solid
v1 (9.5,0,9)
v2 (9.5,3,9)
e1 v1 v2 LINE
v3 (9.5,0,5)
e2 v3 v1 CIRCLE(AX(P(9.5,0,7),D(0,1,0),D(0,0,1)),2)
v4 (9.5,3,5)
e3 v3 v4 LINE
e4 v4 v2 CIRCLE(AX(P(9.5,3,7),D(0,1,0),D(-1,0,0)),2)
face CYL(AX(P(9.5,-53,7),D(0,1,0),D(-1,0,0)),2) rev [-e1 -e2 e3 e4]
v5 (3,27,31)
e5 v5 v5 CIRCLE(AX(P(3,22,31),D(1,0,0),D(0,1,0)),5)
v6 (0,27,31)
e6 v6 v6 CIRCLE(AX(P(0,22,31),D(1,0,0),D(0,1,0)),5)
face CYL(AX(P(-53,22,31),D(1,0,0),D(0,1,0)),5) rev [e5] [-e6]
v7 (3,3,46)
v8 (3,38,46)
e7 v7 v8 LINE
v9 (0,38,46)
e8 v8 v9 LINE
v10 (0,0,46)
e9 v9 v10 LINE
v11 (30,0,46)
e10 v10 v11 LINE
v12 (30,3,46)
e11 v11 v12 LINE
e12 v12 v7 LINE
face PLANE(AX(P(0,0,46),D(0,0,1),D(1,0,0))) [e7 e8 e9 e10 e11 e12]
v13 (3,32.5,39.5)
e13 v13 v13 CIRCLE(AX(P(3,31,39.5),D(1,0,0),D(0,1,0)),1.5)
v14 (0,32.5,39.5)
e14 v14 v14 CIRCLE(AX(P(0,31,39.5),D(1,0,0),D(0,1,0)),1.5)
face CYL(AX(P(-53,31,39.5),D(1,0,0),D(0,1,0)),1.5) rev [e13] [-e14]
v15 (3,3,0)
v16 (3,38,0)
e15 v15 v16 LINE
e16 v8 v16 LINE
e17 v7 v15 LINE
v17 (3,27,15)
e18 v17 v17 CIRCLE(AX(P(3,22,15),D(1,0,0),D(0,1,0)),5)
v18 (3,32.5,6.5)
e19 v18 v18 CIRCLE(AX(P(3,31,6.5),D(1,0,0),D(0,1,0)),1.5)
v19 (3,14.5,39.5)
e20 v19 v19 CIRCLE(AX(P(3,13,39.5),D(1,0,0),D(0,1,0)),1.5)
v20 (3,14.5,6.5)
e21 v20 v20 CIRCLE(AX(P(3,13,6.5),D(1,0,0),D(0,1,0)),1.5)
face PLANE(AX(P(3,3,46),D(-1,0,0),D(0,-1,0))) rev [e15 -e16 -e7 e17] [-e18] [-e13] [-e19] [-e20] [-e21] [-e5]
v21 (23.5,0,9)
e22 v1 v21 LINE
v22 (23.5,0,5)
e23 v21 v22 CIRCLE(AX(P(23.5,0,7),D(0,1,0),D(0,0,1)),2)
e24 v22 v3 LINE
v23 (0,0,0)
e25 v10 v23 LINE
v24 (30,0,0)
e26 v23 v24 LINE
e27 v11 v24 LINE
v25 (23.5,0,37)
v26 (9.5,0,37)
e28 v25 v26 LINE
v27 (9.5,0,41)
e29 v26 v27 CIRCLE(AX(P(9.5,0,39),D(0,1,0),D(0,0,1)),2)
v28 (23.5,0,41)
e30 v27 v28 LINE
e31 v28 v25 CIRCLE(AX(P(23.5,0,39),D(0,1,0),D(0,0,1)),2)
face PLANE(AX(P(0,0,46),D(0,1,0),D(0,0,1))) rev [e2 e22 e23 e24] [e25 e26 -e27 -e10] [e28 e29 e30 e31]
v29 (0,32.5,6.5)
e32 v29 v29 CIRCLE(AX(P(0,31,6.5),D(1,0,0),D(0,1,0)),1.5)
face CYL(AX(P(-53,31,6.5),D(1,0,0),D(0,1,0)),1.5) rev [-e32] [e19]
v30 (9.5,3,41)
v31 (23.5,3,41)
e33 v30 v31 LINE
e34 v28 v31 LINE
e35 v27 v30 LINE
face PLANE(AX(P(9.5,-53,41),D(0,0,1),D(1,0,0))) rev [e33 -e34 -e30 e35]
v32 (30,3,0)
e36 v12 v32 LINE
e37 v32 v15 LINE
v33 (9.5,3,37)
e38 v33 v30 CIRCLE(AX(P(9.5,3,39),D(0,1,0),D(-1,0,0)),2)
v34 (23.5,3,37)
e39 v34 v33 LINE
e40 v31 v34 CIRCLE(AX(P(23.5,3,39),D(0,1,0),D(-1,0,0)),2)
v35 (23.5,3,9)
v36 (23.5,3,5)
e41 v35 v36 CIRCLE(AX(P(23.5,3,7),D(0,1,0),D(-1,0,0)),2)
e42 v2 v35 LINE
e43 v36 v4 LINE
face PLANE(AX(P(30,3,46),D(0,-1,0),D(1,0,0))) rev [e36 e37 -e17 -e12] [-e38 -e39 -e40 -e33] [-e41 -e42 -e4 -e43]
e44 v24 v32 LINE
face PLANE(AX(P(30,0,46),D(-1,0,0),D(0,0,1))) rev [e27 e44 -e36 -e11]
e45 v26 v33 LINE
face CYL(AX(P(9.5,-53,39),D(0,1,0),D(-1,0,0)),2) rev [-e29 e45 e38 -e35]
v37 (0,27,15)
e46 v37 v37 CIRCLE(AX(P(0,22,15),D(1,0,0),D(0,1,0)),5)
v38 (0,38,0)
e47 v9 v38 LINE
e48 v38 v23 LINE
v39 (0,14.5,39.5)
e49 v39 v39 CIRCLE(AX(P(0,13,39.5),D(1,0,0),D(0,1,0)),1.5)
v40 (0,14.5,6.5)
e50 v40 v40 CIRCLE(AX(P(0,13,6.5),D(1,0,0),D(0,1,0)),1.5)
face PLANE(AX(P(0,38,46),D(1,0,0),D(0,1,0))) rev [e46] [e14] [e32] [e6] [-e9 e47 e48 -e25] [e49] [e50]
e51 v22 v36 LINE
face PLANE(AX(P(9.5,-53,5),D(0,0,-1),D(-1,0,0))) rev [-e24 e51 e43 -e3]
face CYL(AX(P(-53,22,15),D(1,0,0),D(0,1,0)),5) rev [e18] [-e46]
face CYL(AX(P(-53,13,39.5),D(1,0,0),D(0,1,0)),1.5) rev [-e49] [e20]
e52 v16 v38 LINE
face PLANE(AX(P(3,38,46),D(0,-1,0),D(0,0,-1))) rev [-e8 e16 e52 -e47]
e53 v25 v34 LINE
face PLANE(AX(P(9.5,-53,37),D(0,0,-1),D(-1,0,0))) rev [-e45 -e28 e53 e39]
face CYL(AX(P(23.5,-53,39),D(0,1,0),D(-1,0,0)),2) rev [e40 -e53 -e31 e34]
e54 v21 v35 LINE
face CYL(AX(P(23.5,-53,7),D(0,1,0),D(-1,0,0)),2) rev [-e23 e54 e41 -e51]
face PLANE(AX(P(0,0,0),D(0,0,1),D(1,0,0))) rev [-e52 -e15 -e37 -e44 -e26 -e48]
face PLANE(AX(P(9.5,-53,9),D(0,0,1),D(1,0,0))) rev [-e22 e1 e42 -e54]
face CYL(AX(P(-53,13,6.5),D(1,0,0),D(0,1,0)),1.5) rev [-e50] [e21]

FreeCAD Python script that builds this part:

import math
import FreeCAD as App
import Part
import Sketcher
from FreeCAD import Vector
Q = App.Units.Quantity


def add_polygon(sketch, points):
    """Adds a closed chain of lines whose ends are joined by coincident constraints."""
    first, n = sketch.GeometryCount, len(points)
    for a, b in zip(points, points[1:] + points[:1]):
        sketch.addGeometry(Part.LineSegment(App.Vector(*a, 0), App.Vector(*b, 0)), False)
    for i in range(n):
        sketch.addConstraint(Sketcher.Constraint("Coincident", first + i, 2, first + (i + 1) % n, 1))

doc = App.newDocument("Part")
body = doc.addObject("PartDesign::Body", "Body")

# Sketch on XY plane
sketch1 = body.newObject("Sketcher::SketchObject", "Sketch")
sketch1.AttachmentSupport = (doc.getObject("XY_Plane"), [""])
sketch1.MapMode = "FlatFace"
add_polygon(sketch1, [(0, 0), (30, 0), (30, 3), (3, 3), (3, 38), (0, 38)])  # lines 0-5
sketch1.addConstraint(Sketcher.Constraint("Horizontal", 0))
sketch1.addConstraint(Sketcher.Constraint("Vertical", 1))
sketch1.addConstraint(Sketcher.Constraint("Horizontal", 2))
sketch1.addConstraint(Sketcher.Constraint("Vertical", 3))
sketch1.addConstraint(Sketcher.Constraint("Horizontal", 4))
sketch1.addConstraint(Sketcher.Constraint("Vertical", 5))
sketch1.addConstraint(Sketcher.Constraint("Coincident", 5, 2, -1, 1))
sketch1.addConstraint(Sketcher.Constraint("Equal", 4, 1))
sketch1.addConstraint(Sketcher.Constraint("DistanceX", 0, 1, 0, 2, Q("30 mm")))
sketch1.addConstraint(Sketcher.Constraint("DistanceX", 2, 2, 2, 1, Q("27 mm")))
sketch1.addConstraint(Sketcher.Constraint("DistanceY", 3, 1, 3, 2, Q("35 mm")))
pad1 = body.newObject("PartDesign::Pad", "Pad")
pad1.Profile = sketch1
pad1.Length = 46

# Sketch on YZ plane
sketch2 = body.newObject("Sketcher::SketchObject", "Sketch001")
sketch2.AttachmentSupport = (doc.getObject("YZ_Plane"), [""])
sketch2.MapMode = "FlatFace"
sketch2.AttachmentOffset = App.Placement(Vector(0, 0, 3), App.Rotation())
sketch2.addGeometry(Part.Circle(Vector(31, 39.5, 0), Vector(0, 0, 1), 1.5), False)
sketch2.addGeometry(Part.Circle(Vector(13, 39.5, 0), Vector(0, 0, 1), 1.5), False)
sketch2.addGeometry(Part.Circle(Vector(31, 6.5, 0), Vector(0, 0, 1), 1.5), False)
sketch2.addGeometry(Part.Circle(Vector(13, 6.5, 0), Vector(0, 0, 1), 1.5), False)
sketch2.addGeometry(Part.Circle(Vector(22, 31, 0), Vector(0, 0, 1), 5), False)
sketch2.addGeometry(Part.Circle(Vector(22, 15, 0), Vector(0, 0, 1), 5), False)
sketch2.addConstraint(Sketcher.Constraint("Equal", 0, 1))
sketch2.addConstraint(Sketcher.Constraint("Equal", 1, 2))
sketch2.addConstraint(Sketcher.Constraint("Equal", 2, 3))
sketch2.addConstraint(Sketcher.Constraint("Equal", 4, 5))
sketch2.addConstraint(Sketcher.Constraint("Horizontal", 0, 3, 1, 3))
sketch2.addConstraint(Sketcher.Constraint("Horizontal", 2, 3, 3, 3))
sketch2.addConstraint(Sketcher.Constraint("Vertical", 0, 3, 2, 3))
sketch2.addConstraint(Sketcher.Constraint("Vertical", 1, 3, 3, 3))
sketch2.addConstraint(Sketcher.Constraint("Vertical", 4, 3, 5, 3))
sketch2.addConstraint(Sketcher.Constraint("Diameter", 0, Q("3 mm")))
sketch2.addConstraint(Sketcher.Constraint("Diameter", 4, Q("10 mm")))
sketch2.addConstraint(Sketcher.Constraint("DistanceX", -1, 1, 0, 3, Q("31 mm")))
sketch2.addConstraint(Sketcher.Constraint("DistanceX", -1, 1, 1, 3, Q("13 mm")))
sketch2.addConstraint(Sketcher.Constraint("DistanceX", -1, 1, 4, 3, Q("22 mm")))
sketch2.addConstraint(Sketcher.Constraint("DistanceY", -1, 1, 4, 3, Q("31 mm")))
sketch2.addConstraint(Sketcher.Constraint("DistanceY", -1, 1, 5, 3, Q("15 mm")))
sketch2.addConstraint(Sketcher.Constraint("DistanceY", 2, 3, 0, 3, Q("33 mm")))
sketch2.addConstraint(Sketcher.Constraint("DistanceY", -1, 1, 0, 3, Q("39.5 mm")))
pocket1 = body.newObject("PartDesign::Pocket", "Pocket")
pocket1.Profile = sketch2
pocket1.Length = 56

# Sketch on XZ plane
sketch3 = body.newObject("Sketcher::SketchObject", "Sketch002")
sketch3.AttachmentSupport = (doc.getObject("XZ_Plane"), [""])
sketch3.MapMode = "FlatFace"
sketch3.AttachmentOffset = App.Placement(Vector(0, 0, -3), App.Rotation())
sketch3.addGeometry(Part.LineSegment(Vector(23.5, 5, 0), Vector(9.5, 5, 0)), False)
sketch3.addGeometry(Part.ArcOfCircle(Part.Circle(Vector(9.5, 7, 0), Vector(0, 0, 1), 2), math.radians(90), math.radians(270)), False)
sketch3.addGeometry(Part.LineSegment(Vector(9.5, 9, 0), Vector(23.5, 9, 0)), False)
sketch3.addGeometry(Part.ArcOfCircle(Part.Circle(Vector(23.5, 7, 0), Vector(0, 0, 1), 2), math.radians(-90), math.radians(90)), False)
sketch3.addGeometry(Part.LineSegment(Vector(23.5, 37, 0), Vector(9.5, 37, 0)), False)
sketch3.addGeometry(Part.ArcOfCircle(Part.Circle(Vector(9.5, 39, 0), Vector(0, 0, 1), 2), math.radians(90), math.radians(270)), False)
sketch3.addGeometry(Part.LineSegment(Vector(9.5, 41, 0), Vector(23.5, 41, 0)), False)
sketch3.addGeometry(Part.ArcOfCircle(Part.Circle(Vector(23.5, 39, 0), Vector(0, 0, 1), 2), math.radians(-90), math.radians(90)), False)
sketch3.addConstraint(Sketcher.Constraint("Tangent", 0, 2, 1, 2))
sketch3.addConstraint(Sketcher.Constraint("Tangent", 1, 1, 2, 1))
sketch3.addConstraint(Sketcher.Constraint("Tangent", 2, 2, 3, 2))
sketch3.addConstraint(Sketcher.Constraint("Tangent", 3, 1, 0, 1))
sketch3.addConstraint(Sketcher.Constraint("Tangent", 4, 2, 5, 2))
sketch3.addConstraint(Sketcher.Constraint("Tangent", 5, 1, 6, 1))
sketch3.addConstraint(Sketcher.Constraint("Tangent", 6, 2, 7, 2))
sketch3.addConstraint(Sketcher.Constraint("Tangent", 7, 1, 4, 1))
sketch3.addConstraint(Sketcher.Constraint("Horizontal", 0))
sketch3.addConstraint(Sketcher.Constraint("Horizontal", 2))
sketch3.addConstraint(Sketcher.Constraint("Horizontal", 4))
sketch3.addConstraint(Sketcher.Constraint("Horizontal", 6))
sketch3.addConstraint(Sketcher.Constraint("Equal", 3, 5))
sketch3.addConstraint(Sketcher.Constraint("Vertical", 1, 3, 5, 3))
sketch3.addConstraint(Sketcher.Constraint("Vertical", 3, 3, 7, 3))
sketch3.addConstraint(Sketcher.Constraint("Radius", 1, Q("2 mm")))
sketch3.addConstraint(Sketcher.Constraint("DistanceX", 0, 2, 0, 1, Q("14 mm")))
sketch3.addConstraint(Sketcher.Constraint("DistanceY", -1, 1, 1, 3, Q("7 mm")))
sketch3.addConstraint(Sketcher.Constraint("DistanceY", -1, 1, 5, 3, Q("39 mm")))
sketch3.addConstraint(Sketcher.Constraint("DistanceX", -1, 1, 1, 3, Q("9.5 mm")))
pocket2 = body.newObject("PartDesign::Pocket", "Pocket001")
pocket2.Profile = sketch3
pocket2.Length = 56
pocket2.Reversed = True

doc.recompute()
